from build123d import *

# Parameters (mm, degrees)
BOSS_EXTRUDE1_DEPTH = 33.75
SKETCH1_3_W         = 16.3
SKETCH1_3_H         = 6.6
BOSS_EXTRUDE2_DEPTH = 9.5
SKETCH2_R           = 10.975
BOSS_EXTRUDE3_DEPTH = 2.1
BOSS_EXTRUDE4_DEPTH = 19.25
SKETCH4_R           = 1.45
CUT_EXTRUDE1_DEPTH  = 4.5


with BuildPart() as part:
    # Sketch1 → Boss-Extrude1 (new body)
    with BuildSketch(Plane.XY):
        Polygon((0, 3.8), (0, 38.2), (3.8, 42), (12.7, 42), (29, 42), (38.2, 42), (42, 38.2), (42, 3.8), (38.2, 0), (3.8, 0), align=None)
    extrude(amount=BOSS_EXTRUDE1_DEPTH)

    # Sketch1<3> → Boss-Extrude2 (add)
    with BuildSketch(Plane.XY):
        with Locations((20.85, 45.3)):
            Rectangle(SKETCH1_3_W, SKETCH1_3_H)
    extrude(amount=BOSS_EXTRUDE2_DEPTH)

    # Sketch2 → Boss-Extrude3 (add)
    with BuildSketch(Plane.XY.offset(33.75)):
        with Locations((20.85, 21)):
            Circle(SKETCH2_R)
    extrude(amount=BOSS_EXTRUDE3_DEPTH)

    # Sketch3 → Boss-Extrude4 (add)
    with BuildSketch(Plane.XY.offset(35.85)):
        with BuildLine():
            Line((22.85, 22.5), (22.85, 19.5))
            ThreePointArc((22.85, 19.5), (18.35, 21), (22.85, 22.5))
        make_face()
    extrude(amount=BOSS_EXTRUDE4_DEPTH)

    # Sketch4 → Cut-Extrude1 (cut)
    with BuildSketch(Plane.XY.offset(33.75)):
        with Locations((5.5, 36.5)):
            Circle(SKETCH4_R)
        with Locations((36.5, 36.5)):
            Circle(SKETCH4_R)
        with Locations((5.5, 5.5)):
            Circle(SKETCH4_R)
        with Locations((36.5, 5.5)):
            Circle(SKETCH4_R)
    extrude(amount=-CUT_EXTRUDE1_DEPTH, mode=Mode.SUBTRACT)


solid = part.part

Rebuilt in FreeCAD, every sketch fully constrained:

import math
import FreeCAD as App
import Part
import Sketcher

V = App.Vector
Q = App.Units.Quantity


def add_polygon(sketch, points):
    """Adds a closed chain of lines whose ends are joined by coincident constraints."""
    first, n = sketch.GeometryCount, len(points)
    for a, b in zip(points, points[1:] + points[:1]):
        sketch.addGeometry(Part.LineSegment(App.Vector(*a, 0), App.Vector(*b, 0)), False)
    for i in range(n):
        sketch.addConstraint(Sketcher.Constraint("Coincident", first + i, 2, first + (i + 1) % n, 1))

doc = App.newDocument("Part")
body = doc.addObject("PartDesign::Body", "Body")

# Sketch on XY plane
sketch1 = body.newObject("Sketcher::SketchObject", "Sketch")
sketch1.AttachmentSupport = (doc.getObject("XY_Plane"), [""])
sketch1.MapMode = "FlatFace"
add_polygon(sketch1, [(0, 38), (0, 4), (4, 0), (38, 0), (42, 4), (42, 38), (38, 42), (4, 42)])  # lines 0-7
sketch1.addConstraint([
    Sketcher.Constraint("Vertical", 0),
    Sketcher.Constraint("Horizontal", 2),
    Sketcher.Constraint("Vertical", 4),
    Sketcher.Constraint("Horizontal", 6),
    Sketcher.Constraint("PointOnObject", 0, 2, -2),
    Sketcher.Constraint("PointOnObject", 1, 2, -1),
    Sketcher.Constraint("Perpendicular", 1, 3),
    Sketcher.Constraint("Perpendicular", 3, 5),
    Sketcher.Constraint("Perpendicular", 5, 7),
    Sketcher.Constraint("Horizontal", 0, 2, 3, 2),
    Sketcher.Constraint("Horizontal", 4, 2, 7, 2),
    Sketcher.Constraint("Vertical", 2, 2, 5, 2),
    Sketcher.Constraint("Vertical", 1, 2, 6, 2),
    Sketcher.Constraint("Equal", 6, 0),
    Sketcher.Constraint("DistanceX", 2, 1, 2, 2, Q("34.4 mm")),
    Sketcher.Constraint("DistanceX", -1, 1, 3, 2, Q("42 mm")),
])
pad1 = body.newObject("PartDesign::Pad", "Pad")
pad1.Profile = sketch1
pad1.Length = 33.75

# Sketch on XY plane
sketch2 = body.newObject("Sketcher::SketchObject", "Sketch001")
sketch2.AttachmentSupport = (doc.getObject("XY_Plane"), [""])
sketch2.MapMode = "FlatFace"
add_polygon(sketch2, [(13, 49), (13, 42), (29, 42), (29, 49)])  # lines 0-3
sketch2.addConstraint([
    Sketcher.Constraint("Vertical", 0),
    Sketcher.Constraint("Horizontal", 1),
    Sketcher.Constraint("Vertical", 2),
    Sketcher.Constraint("Horizontal", 3),
    Sketcher.Constraint("DistanceX", 1, 1, 1, 2, Q("16.3 mm")),
    Sketcher.Constraint("DistanceY", 0, 2, 0, 1, Q("6.6 mm")),
    Sketcher.Constraint("DistanceY", -1, 1, 0, 2, Q("42 mm")),
    Sketcher.Constraint("DistanceX", -1, 1, 1, 2, Q("29 mm")),
])
pad2 = body.newObject("PartDesign::Pad", "Pad001")
pad2.Profile = sketch2
pad2.Length = 9.5

# Sketch on XY plane
sketch3 = body.newObject("Sketcher::SketchObject", "Sketch002")
sketch3.AttachmentSupport = (doc.getObject("XY_Plane"), [""])
sketch3.MapMode = "FlatFace"
sketch3.AttachmentOffset = App.Placement(V(0, 0, 33.75), App.Rotation())
sketch3.addGeometry(Part.Circle(V(21, 21, 0), V(0, 0, 1), 11), False)
sketch3.addConstraint([
    Sketcher.Constraint("Diameter", 0, Q("21.95 mm")),
    Sketcher.Constraint("DistanceY", -1, 1, 0, 3, Q("21 mm")),
    Sketcher.Constraint("DistanceX", -1, 1, 0, 3, Q("20.85 mm")),
])
pad3 = body.newObject("PartDesign::Pad", "Pad002")
pad3.Profile = sketch3
pad3.Length = 2.1

# Sketch on XY plane
sketch4 = body.newObject("Sketcher::SketchObject", "Sketch003")
sketch4.AttachmentSupport = (doc.getObject("XY_Plane"), [""])
sketch4.MapMode = "FlatFace"
sketch4.AttachmentOffset = App.Placement(V(0, 0, 35.85), App.Rotation())
sketch4.addGeometry([
    Part.LineSegment(V(22.9, 19.5, 0), V(22.9, 22.5, 0)),
    Part.ArcOfCircle(Part.Circle(V(20.9, 21, 0), V(0, 0, 1), 2.5), math.radians(37), math.radians(323)),
], False)
sketch4.addConstraint([
    Sketcher.Constraint("Coincident", 0, 1, 1, 2),
    Sketcher.Constraint("Coincident", 1, 1, 0, 2),
    Sketcher.Constraint("Vertical", 0),
    Sketcher.Constraint("Radius", 1, Q("2.5 mm")),
    Sketcher.Constraint("DistanceY", 0, 1, 0, 2, Q("3 mm")),
    Sketcher.Constraint("DistanceY", -1, 1, 1, 3, Q("21 mm")),
    Sketcher.Constraint("DistanceX", -1, 1, 1, 3, Q("20.85 mm")),
])
pad4 = body.newObject("PartDesign::Pad", "Pad003")
pad4.Profile = sketch4
pad4.Length = 19.25

# Sketch on XY plane
sketch5 = body.newObject("Sketcher::SketchObject", "Sketch004")
sketch5.AttachmentSupport = (doc.getObject("XY_Plane"), [""])
sketch5.MapMode = "FlatFace"
sketch5.AttachmentOffset = App.Placement(V(0, 0, 33.75), App.Rotation())
sketch5.addGeometry([
    Part.Circle(V(5.5, 36.5, 0), V(0, 0, 1), 1.4),
    Part.Circle(V(36.5, 36.5, 0), V(0, 0, 1), 1.4),
    Part.Circle(V(5.5, 5.5, 0), V(0, 0, 1), 1.4),
    Part.Circle(V(36.5, 5.5, 0), V(0, 0, 1), 1.4),
], False)
sketch5.addConstraint([
    Sketcher.Constraint("Equal", 0, 1),
    Sketcher.Constraint("Equal", 1, 2),
    Sketcher.Constraint("Equal", 2, 3),
    Sketcher.Constraint("Horizontal", 0, 3, 1, 3),
    Sketcher.Constraint("Horizontal", 2, 3, 3, 3),
    Sketcher.Constraint("Vertical", 0, 3, 2, 3),
    Sketcher.Constraint("Vertical", 1, 3, 3, 3),
    Sketcher.Constraint("Diameter", 0, Q("2.9 mm")),
    Sketcher.Constraint("DistanceX", 0, 3, 1, 3, Q("31 mm")),
    Sketcher.Constraint("DistanceY", 2, 3, 0, 3, Q("31 mm")),
    Sketcher.Constraint("DistanceX", -1, 1, 0, 3, Q("5.5 mm")),
    Sketcher.Constraint("DistanceY", -1, 1, 0, 3, Q("36.5 mm")),
])
pocket1 = body.newObject("PartDesign::Pocket", "Pocket")
pocket1.Profile = sketch5
pocket1.Length = 4.5

doc.recompute()
